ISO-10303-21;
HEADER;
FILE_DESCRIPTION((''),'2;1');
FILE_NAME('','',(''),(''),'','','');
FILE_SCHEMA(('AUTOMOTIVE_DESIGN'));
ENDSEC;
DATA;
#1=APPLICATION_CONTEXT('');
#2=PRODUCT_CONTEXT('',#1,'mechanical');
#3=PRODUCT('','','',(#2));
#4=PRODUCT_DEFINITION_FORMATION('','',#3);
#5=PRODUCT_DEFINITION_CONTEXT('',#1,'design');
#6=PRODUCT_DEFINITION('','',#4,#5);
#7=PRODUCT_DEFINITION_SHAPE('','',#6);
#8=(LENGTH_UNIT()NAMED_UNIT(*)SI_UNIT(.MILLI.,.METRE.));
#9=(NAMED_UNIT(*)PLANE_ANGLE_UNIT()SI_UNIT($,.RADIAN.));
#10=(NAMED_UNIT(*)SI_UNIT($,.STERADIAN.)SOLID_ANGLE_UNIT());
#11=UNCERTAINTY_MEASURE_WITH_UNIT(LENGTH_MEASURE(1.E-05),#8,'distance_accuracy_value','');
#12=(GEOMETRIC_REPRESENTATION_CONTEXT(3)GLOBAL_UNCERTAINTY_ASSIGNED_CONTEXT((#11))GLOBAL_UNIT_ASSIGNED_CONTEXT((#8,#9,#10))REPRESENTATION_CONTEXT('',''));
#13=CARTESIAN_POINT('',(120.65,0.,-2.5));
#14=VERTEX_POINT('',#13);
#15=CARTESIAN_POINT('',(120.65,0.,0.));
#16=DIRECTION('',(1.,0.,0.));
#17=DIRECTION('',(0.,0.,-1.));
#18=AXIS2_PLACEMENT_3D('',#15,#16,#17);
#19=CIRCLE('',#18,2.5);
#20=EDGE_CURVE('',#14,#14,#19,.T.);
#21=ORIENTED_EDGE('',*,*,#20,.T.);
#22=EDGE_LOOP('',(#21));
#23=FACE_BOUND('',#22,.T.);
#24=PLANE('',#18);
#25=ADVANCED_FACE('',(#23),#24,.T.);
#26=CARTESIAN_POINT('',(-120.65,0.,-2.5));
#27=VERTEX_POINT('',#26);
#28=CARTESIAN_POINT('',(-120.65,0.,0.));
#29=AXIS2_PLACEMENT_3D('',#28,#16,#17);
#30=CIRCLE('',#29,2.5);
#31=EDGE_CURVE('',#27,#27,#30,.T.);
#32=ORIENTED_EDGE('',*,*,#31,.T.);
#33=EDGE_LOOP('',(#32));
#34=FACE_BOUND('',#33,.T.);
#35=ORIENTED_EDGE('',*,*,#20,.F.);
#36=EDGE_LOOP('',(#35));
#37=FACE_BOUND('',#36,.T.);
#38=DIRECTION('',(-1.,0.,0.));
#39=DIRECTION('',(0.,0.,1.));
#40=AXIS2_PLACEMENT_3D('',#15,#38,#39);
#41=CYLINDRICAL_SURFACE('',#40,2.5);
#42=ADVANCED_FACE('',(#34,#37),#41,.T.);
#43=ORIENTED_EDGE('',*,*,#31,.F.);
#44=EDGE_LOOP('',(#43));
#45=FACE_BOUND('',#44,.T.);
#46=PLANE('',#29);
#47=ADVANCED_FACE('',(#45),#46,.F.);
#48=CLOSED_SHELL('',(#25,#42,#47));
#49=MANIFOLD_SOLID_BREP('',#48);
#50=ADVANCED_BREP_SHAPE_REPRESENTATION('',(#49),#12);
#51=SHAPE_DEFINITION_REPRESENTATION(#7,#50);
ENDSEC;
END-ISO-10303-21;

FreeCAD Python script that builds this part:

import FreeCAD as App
import Part
import Sketcher
from FreeCAD import Vector
Q = App.Units.Quantity

doc = App.newDocument("Part")
body = doc.addObject("PartDesign::Body", "Body")

# Sketch on YZ plane
sketch1 = body.newObject("Sketcher::SketchObject", "Sketch")
sketch1.AttachmentSupport = (doc.getObject("YZ_Plane"), [""])
sketch1.MapMode = "FlatFace"
sketch1.addGeometry(Part.Circle(Vector(0, 0, 0), Vector(0, 0, 1), 2.5), False)
sketch1.addConstraint(Sketcher.Constraint("Coincident", 0, 3, -1, 1))
sketch1.addConstraint(Sketcher.Constraint("Diameter", 0, Q("5 mm")))
pad1 = body.newObject("PartDesign::Pad", "Pad")
pad1.Profile = sketch1
pad1.Length = 241.3
pad1.Midplane = True

doc.recompute()
